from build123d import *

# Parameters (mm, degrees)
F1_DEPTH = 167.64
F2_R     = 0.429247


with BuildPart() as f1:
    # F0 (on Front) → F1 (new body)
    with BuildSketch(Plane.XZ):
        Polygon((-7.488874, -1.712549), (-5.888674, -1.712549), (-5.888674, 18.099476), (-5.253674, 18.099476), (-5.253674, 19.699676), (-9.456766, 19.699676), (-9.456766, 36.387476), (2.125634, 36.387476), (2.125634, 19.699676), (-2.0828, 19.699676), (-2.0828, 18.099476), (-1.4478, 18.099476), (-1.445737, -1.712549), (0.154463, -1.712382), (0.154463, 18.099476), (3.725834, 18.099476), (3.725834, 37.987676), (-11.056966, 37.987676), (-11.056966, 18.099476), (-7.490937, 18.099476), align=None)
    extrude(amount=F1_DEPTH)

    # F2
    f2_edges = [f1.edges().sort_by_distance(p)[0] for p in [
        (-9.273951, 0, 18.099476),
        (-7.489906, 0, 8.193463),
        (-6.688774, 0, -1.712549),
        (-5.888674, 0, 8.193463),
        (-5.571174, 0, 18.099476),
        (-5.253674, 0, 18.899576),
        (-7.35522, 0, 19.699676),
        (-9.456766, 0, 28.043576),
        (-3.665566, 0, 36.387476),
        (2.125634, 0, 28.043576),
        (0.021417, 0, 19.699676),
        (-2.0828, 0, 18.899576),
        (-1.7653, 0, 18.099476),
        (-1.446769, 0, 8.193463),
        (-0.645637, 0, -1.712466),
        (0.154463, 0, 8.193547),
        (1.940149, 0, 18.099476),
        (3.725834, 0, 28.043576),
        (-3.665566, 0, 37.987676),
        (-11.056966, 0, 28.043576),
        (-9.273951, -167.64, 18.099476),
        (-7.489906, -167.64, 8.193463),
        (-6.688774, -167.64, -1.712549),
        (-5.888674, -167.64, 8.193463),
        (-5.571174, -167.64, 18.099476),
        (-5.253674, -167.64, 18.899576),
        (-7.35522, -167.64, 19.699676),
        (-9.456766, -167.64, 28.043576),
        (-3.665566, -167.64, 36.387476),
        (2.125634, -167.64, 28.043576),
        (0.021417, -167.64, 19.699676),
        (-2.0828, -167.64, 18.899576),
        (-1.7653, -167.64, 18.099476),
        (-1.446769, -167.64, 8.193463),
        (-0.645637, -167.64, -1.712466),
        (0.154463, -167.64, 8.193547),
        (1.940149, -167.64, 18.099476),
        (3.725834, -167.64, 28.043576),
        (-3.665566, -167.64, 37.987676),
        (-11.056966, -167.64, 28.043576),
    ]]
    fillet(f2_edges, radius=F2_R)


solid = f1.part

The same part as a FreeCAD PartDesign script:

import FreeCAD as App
import Part
import Sketcher

V = App.Vector
Q = App.Units.Quantity


def edges_at(feature, points):
    """Names of the edges that pass closest to the given points."""
    edges = feature.Shape.Edges
    near = lambda p: min(range(len(edges)), key=lambda i: edges[i].distToShape(Part.Vertex(*p))[0])
    return sorted({f"Edge{near(p) + 1}" for p in points})

doc = App.newDocument("Part")
body = doc.addObject("PartDesign::Body", "Body")

# Sketch on XZ plane
sketch1 = doc.addObject("Sketcher::SketchObject", "Sketch")
body.addObject(sketch1)
sketch1.AttachmentSupport = (doc.XZ_Plane, [""])
sketch1.MapMode = "FlatFace"
sketch1.addGeometry(Part.LineSegment(V(-7.488874, -1.712549, 0), V(-5.888674, -1.712549, 0)), False)
sketch1.addGeometry(Part.LineSegment(V(-5.888674, -1.712549, 0), V(-5.888674, 18.099476, 0)), False)
sketch1.addGeometry(Part.LineSegment(V(-5.888674, 18.099476, 0), V(-5.253674, 18.099476, 0)), False)
sketch1.addGeometry(Part.LineSegment(V(-5.253674, 18.099476, 0), V(-5.253674, 19.699676, 0)), False)
sketch1.addGeometry(Part.LineSegment(V(-5.253674, 19.699676, 0), V(-9.456766, 19.699676, 0)), False)
sketch1.addGeometry(Part.LineSegment(V(-9.456766, 19.699676, 0), V(-9.456766, 36.387476, 0)), False)
sketch1.addGeometry(Part.LineSegment(V(-9.456766, 36.387476, 0), V(2.125634, 36.387476, 0)), False)
sketch1.addGeometry(Part.LineSegment(V(2.125634, 36.387476, 0), V(2.125634, 19.699676, 0)), False)
sketch1.addGeometry(Part.LineSegment(V(2.125634, 19.699676, 0), V(-2.0828, 19.699676, 0)), False)
sketch1.addGeometry(Part.LineSegment(V(-2.0828, 19.699676, 0), V(-2.0828, 18.099476, 0)), False)
sketch1.addGeometry(Part.LineSegment(V(-2.0828, 18.099476, 0), V(-1.4478, 18.099476, 0)), False)
sketch1.addGeometry(Part.LineSegment(V(-1.4478, 18.099476, 0), V(-1.445737, -1.712549, 0)), False)
sketch1.addGeometry(Part.LineSegment(V(-1.445737, -1.712549, 0), V(0.154463, -1.712382, 0)), False)
sketch1.addGeometry(Part.LineSegment(V(0.154463, -1.712382, 0), V(0.154463, 18.099476, 0)), False)
sketch1.addGeometry(Part.LineSegment(V(0.154463, 18.099476, 0), V(3.725834, 18.099476, 0)), False)
sketch1.addGeometry(Part.LineSegment(V(3.725834, 18.099476, 0), V(3.725834, 37.987676, 0)), False)
sketch1.addGeometry(Part.LineSegment(V(3.725834, 37.987676, 0), V(-11.056966, 37.987676, 0)), False)
sketch1.addGeometry(Part.LineSegment(V(-11.056966, 37.987676, 0), V(-11.056966, 18.099476, 0)), False)
sketch1.addGeometry(Part.LineSegment(V(-11.056966, 18.099476, 0), V(-7.490937, 18.099476, 0)), False)
sketch1.addGeometry(Part.LineSegment(V(-7.490937, 18.099476, 0), V(-7.488874, -1.712549, 0)), False)
sketch1.addConstraint(Sketcher.Constraint("Coincident", 0, 2, 1, 1))
sketch1.addConstraint(Sketcher.Constraint("Coincident", 1, 2, 2, 1))
sketch1.addConstraint(Sketcher.Constraint("Coincident", 2, 2, 3, 1))
sketch1.addConstraint(Sketcher.Constraint("Coincident", 3, 2, 4, 1))
sketch1.addConstraint(Sketcher.Constraint("Coincident", 4, 2, 5, 1))
sketch1.addConstraint(Sketcher.Constraint("Coincident", 5, 2, 6, 1))
sketch1.addConstraint(Sketcher.Constraint("Coincident", 6, 2, 7, 1))
sketch1.addConstraint(Sketcher.Constraint("Coincident", 7, 2, 8, 1))
sketch1.addConstraint(Sketcher.Constraint("Coincident", 8, 2, 9, 1))
sketch1.addConstraint(Sketcher.Constraint("Coincident", 9, 2, 10, 1))
sketch1.addConstraint(Sketcher.Constraint("Coincident", 10, 2, 11, 1))
sketch1.addConstraint(Sketcher.Constraint("Coincident", 11, 2, 12, 1))
sketch1.addConstraint(Sketcher.Constraint("Coincident", 12, 2, 13, 1))
sketch1.addConstraint(Sketcher.Constraint("Coincident", 13, 2, 14, 1))
sketch1.addConstraint(Sketcher.Constraint("Coincident", 14, 2, 15, 1))
sketch1.addConstraint(Sketcher.Constraint("Coincident", 15, 2, 16, 1))
sketch1.addConstraint(Sketcher.Constraint("Coincident", 16, 2, 17, 1))
sketch1.addConstraint(Sketcher.Constraint("Coincident", 17, 2, 18, 1))
sketch1.addConstraint(Sketcher.Constraint("Coincident", 18, 2, 19, 1))
sketch1.addConstraint(Sketcher.Constraint("Coincident", 19, 2, 0, 1))
sketch1.addConstraint(Sketcher.Constraint("Horizontal", 0))
sketch1.addConstraint(Sketcher.Constraint("Vertical", 1))
sketch1.addConstraint(Sketcher.Constraint("Horizontal", 2))
sketch1.addConstraint(Sketcher.Constraint("Vertical", 3))
sketch1.addConstraint(Sketcher.Constraint("Horizontal", 4))
sketch1.addConstraint(Sketcher.Constraint("Vertical", 5))
sketch1.addConstraint(Sketcher.Constraint("Horizontal", 6))
sketch1.addConstraint(Sketcher.Constraint("Vertical", 7))
sketch1.addConstraint(Sketcher.Constraint("Horizontal", 8))
sketch1.addConstraint(Sketcher.Constraint("Vertical", 9))
sketch1.addConstraint(Sketcher.Constraint("Horizontal", 10))
sketch1.addConstraint(Sketcher.Constraint("Vertical", 13))
sketch1.addConstraint(Sketcher.Constraint("Horizontal", 14))
sketch1.addConstraint(Sketcher.Constraint("Vertical", 15))
sketch1.addConstraint(Sketcher.Constraint("Horizontal", 16))
sketch1.addConstraint(Sketcher.Constraint("Vertical", 17))
sketch1.addConstraint(Sketcher.Constraint("Horizontal", 18))
sketch1.addConstraint(Sketcher.Constraint("Perpendicular", 11, 12))
sketch1.addConstraint(Sketcher.Constraint("Perpendicular", 12, 19))
sketch1.addConstraint(Sketcher.Constraint("Horizontal", 4, 2, 7, 2))
sketch1.addConstraint(Sketcher.Constraint("Horizontal", 2, 2, 9, 2))
sketch1.addConstraint(Sketcher.Constraint("Horizontal", 0, 2, 11, 2))
sketch1.addConstraint(Sketcher.Constraint("Horizontal", 10, 2, 13, 2))
sketch1.addConstraint(Sketcher.Constraint("Horizontal", 14, 2, 17, 2))
sketch1.addConstraint(Sketcher.Constraint("Equal", 2, 10))
sketch1.addConstraint(Sketcher.Constraint("Equal", 0, 3))
sketch1.addConstraint(Sketcher.Constraint("DistanceX", 0, 1, 0, 2, Q("0.063 in")))
sketch1.addConstraint(Sketcher.Constraint("DistanceX", 2, 1, 2, 2, Q("0.025 in")))
sketch1.addConstraint(Sketcher.Constraint("DistanceX", 6, 1, 6, 2, Q("0.456 in")))
sketch1.addConstraint(Sketcher.Constraint("DistanceX", 16, 2, 16, 1, Q("0.582 in")))
sketch1.addConstraint(Sketcher.Constraint("DistanceY", 5, 1, 5, 2, Q("0.657 in")))
sketch1.addConstraint(Sketcher.Constraint("DistanceY", 15, 1, 15, 2, Q("0.783 in")))
sketch1.addConstraint(Sketcher.Constraint("Distance", 12, Q("0.063 in")))
sketch1.addConstraint(Sketcher.Constraint("DistanceX", 8, 2, -1, 1, Q("0.082 in")))
sketch1.addConstraint(Sketcher.Constraint("DistanceX", 7, 2, 14, 2, Q("0.063 in")))
sketch1.addConstraint(Sketcher.Constraint("DistanceX", 4, 2, 4, 1, Q("4.203092 mm")))
sketch1.addConstraint(Sketcher.Constraint("DistanceX", 14, 1, 14, 2, Q("3.571371 mm")))
sketch1.addConstraint(Sketcher.Constraint("DistanceX", 18, 1, 18, 2, Q("3.566029 mm")))
sketch1.addConstraint(Sketcher.Constraint("DistanceY", 13, 1, 13, 2, Q("19.811858 mm")))
sketch1.addConstraint(Sketcher.Constraint("DistanceY", 0, 2, -1, 1, Q("1.712549 mm")))
pad1 = doc.addObject("PartDesign::Pad", "Pad")
body.addObject(pad1)
pad1.Profile = sketch1
pad1.Length = Q("6.6 in")
doc.recompute()

fillet = doc.addObject("PartDesign::Fillet", "Fillet")
body.addObject(fillet)
fillet.Base = (pad1, edges_at(pad1, [
    (-9.274, 0, 18.099),
    (-7.49, 0, 8.193),
    (-6.689, 0, -1.713),
    (-5.889, 0, 8.193),
    (-5.571, 0, 18.099),
    (-5.254, 0, 18.9),
    (-7.355, 0, 19.7),
    (-9.457, 0, 28.044),
    (-3.666, 0, 36.387),
    (2.126, 0, 28.044),
    (0.021, 0, 19.7),
    (-2.083, 0, 18.9),
    (-1.765, 0, 18.099),
    (-1.447, 0, 8.193),
    (-0.646, 0, -1.712),
    (0.154, 0, 8.194),
    (1.94, 0, 18.099),
    (3.726, 0, 28.044),
    (-3.666, 0, 37.988),
    (-11.057, 0, 28.044),
    (-9.274, -167.64, 18.099),
    (-7.49, -167.64, 8.193),
    (-6.689, -167.64, -1.713),
    (-5.889, -167.64, 8.193),
    (-5.571, -167.64, 18.099),
    (-5.254, -167.64, 18.9),
    (-7.355, -167.64, 19.7),
    (-9.457, -167.64, 28.044),
    (-3.666, -167.64, 36.387),
    (2.126, -167.64, 28.044),
    (0.021, -167.64, 19.7),
    (-2.083, -167.64, 18.9),
    (-1.765, -167.64, 18.099),
    (-1.447, -167.64, 8.193),
    (-0.646, -167.64, -1.712),
    (0.154, -167.64, 8.194),
    (1.94, -167.64, 18.099),
    (3.726, -167.64, 28.044),
    (-3.666, -167.64, 37.988),
    (-11.057, -167.64, 28.044),
]))
fillet.Radius = 0.429247

doc.recompute()
